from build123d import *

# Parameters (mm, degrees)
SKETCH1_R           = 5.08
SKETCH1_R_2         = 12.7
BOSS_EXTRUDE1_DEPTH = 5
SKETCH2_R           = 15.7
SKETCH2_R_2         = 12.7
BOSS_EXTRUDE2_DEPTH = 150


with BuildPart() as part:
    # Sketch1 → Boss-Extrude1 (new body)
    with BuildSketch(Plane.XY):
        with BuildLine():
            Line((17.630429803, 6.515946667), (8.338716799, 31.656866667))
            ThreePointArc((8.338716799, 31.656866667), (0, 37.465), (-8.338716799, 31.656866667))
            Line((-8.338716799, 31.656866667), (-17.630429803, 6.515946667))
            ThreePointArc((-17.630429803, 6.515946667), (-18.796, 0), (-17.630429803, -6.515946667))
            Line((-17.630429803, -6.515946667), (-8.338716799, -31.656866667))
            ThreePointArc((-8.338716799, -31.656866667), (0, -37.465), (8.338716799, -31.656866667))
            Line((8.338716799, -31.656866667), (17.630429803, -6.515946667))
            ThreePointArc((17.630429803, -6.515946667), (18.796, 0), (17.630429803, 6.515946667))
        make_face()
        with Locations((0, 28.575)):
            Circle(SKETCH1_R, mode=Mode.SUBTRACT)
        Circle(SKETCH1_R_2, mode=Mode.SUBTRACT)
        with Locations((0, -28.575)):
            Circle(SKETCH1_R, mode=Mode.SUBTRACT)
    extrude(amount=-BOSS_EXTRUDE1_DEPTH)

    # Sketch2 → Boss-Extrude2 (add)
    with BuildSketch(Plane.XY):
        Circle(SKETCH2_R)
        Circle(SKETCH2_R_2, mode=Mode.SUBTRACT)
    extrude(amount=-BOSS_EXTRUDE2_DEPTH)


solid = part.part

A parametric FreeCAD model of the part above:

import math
import FreeCAD as App
import Part
import Sketcher
Q = App.Units.Quantity

doc = App.newDocument("Part")
body = doc.addObject("PartDesign::Body", "Body")

# Sketch on XY plane
sketch1 = doc.addObject("Sketcher::SketchObject", "Sketch")
body.addObject(sketch1)
sketch1.AttachmentSupport = (doc.XY_Plane, [""])
sketch1.MapMode = "FlatFace"
sketch1.addGeometry([
    Part.LineSegment(App.Vector(17.63043, 6.515947, 0), App.Vector(8.338717, 31.656867, 0)),  # 0
    Part.ArcOfCircle(Part.Circle(App.Vector(0, 28.575, 0), App.Vector(0, 0, 1), 8.89), math.radians(20.283569), math.radians(159.716431)),  # 1
    Part.LineSegment(App.Vector(-8.338717, 31.656867, 0), App.Vector(-17.63043, 6.515947, 0)),  # 2
    Part.ArcOfCircle(Part.Circle(App.Vector(0, 0, 0), App.Vector(0, 0, 1), 18.796), math.radians(159.716431), math.radians(200.283569)),  # 3
    Part.LineSegment(App.Vector(-17.63043, -6.515947, 0), App.Vector(-8.338717, -31.656867, 0)),  # 4
    Part.ArcOfCircle(Part.Circle(App.Vector(0, -28.575, 0), App.Vector(0, 0, 1), 8.89), math.radians(-159.716431), math.radians(-20.283569)),  # 5
    Part.LineSegment(App.Vector(8.338717, -31.656867, 0), App.Vector(17.63043, -6.515947, 0)),  # 6
    Part.ArcOfCircle(Part.Circle(App.Vector(0, 0, 0), App.Vector(0, 0, 1), 18.796), math.radians(-20.283569), math.radians(20.283569)),  # 7
    Part.Circle(App.Vector(0, -28.575, 0), App.Vector(0, 0, 1), 5.08),  # 8
    Part.Circle(App.Vector(0, 0, 0), App.Vector(0, 0, 1), 12.7),  # 9
    Part.Circle(App.Vector(0, 28.575, 0), App.Vector(0, 0, 1), 5.08),  # 10
], False)
sketch1.addConstraint([
    Sketcher.Constraint("Tangent", 0, 2, 1, 1),
    Sketcher.Constraint("Tangent", 1, 2, 2, 1),
    Sketcher.Constraint("Tangent", 2, 2, 3, 1),
    Sketcher.Constraint("Tangent", 3, 2, 4, 1),
    Sketcher.Constraint("Tangent", 4, 2, 5, 1),
    Sketcher.Constraint("Tangent", 5, 2, 6, 1),
    Sketcher.Constraint("Tangent", 6, 2, 7, 1),
    Sketcher.Constraint("Tangent", 7, 2, 0, 1),
    Sketcher.Constraint("Coincident", 3, 3, -1, 1),
    Sketcher.Constraint("Coincident", 7, 3, -1, 1),
    Sketcher.Constraint("Coincident", 9, 3, -1, 1),
    Sketcher.Constraint("Coincident", 8, 3, 5, 3),
    Sketcher.Constraint("Coincident", 10, 3, 1, 3),
    Sketcher.Constraint("Equal", 1, 5),
    Sketcher.Constraint("Equal", 3, 7),
    Sketcher.Constraint("Equal", 8, 10),
    Sketcher.Constraint("Symmetric", 1, 3, 5, 3, -1, 1),
    Sketcher.Constraint("PointOnObject", 1, 3, -2),
    Sketcher.Constraint("Diameter", 9, Q("1 in")),
    Sketcher.Constraint("Diameter", 8, Q("0.4 in")),
    Sketcher.Constraint("Radius", 1, Q("0.35 in")),
    Sketcher.Constraint("Radius", 3, Q("0.74 in")),
    Sketcher.Constraint("DistanceY", 5, 3, 1, 3, Q("2.25 in")),
])
pad1 = doc.addObject("PartDesign::Pad", "Pad")
body.addObject(pad1)
pad1.Profile = sketch1
pad1.Length = 5
pad1.Reversed = True

# Sketch on XY plane
sketch2 = doc.addObject("Sketcher::SketchObject", "Sketch001")
body.addObject(sketch2)
sketch2.AttachmentSupport = (doc.XY_Plane, [""])
sketch2.MapMode = "FlatFace"
sketch2.addGeometry([
    Part.Circle(App.Vector(0, 0, 0), App.Vector(0, 0, 1), 15.7),
    Part.Circle(App.Vector(0, 0, 0), App.Vector(0, 0, 1), 12.7),
], False)
sketch2.addConstraint([
    Sketcher.Constraint("Coincident", 0, 3, -1, 1),
    Sketcher.Constraint("Coincident", 1, 3, -1, 1),
    Sketcher.Constraint("Diameter", 1, Q("1 in")),
    Sketcher.Constraint("Diameter", 0, Q("31.4 mm")),
])
pad2 = doc.addObject("PartDesign::Pad", "Pad001")
body.addObject(pad2)
pad2.Profile = sketch2
pad2.Length = 150
pad2.Reversed = True

doc.recompute()
